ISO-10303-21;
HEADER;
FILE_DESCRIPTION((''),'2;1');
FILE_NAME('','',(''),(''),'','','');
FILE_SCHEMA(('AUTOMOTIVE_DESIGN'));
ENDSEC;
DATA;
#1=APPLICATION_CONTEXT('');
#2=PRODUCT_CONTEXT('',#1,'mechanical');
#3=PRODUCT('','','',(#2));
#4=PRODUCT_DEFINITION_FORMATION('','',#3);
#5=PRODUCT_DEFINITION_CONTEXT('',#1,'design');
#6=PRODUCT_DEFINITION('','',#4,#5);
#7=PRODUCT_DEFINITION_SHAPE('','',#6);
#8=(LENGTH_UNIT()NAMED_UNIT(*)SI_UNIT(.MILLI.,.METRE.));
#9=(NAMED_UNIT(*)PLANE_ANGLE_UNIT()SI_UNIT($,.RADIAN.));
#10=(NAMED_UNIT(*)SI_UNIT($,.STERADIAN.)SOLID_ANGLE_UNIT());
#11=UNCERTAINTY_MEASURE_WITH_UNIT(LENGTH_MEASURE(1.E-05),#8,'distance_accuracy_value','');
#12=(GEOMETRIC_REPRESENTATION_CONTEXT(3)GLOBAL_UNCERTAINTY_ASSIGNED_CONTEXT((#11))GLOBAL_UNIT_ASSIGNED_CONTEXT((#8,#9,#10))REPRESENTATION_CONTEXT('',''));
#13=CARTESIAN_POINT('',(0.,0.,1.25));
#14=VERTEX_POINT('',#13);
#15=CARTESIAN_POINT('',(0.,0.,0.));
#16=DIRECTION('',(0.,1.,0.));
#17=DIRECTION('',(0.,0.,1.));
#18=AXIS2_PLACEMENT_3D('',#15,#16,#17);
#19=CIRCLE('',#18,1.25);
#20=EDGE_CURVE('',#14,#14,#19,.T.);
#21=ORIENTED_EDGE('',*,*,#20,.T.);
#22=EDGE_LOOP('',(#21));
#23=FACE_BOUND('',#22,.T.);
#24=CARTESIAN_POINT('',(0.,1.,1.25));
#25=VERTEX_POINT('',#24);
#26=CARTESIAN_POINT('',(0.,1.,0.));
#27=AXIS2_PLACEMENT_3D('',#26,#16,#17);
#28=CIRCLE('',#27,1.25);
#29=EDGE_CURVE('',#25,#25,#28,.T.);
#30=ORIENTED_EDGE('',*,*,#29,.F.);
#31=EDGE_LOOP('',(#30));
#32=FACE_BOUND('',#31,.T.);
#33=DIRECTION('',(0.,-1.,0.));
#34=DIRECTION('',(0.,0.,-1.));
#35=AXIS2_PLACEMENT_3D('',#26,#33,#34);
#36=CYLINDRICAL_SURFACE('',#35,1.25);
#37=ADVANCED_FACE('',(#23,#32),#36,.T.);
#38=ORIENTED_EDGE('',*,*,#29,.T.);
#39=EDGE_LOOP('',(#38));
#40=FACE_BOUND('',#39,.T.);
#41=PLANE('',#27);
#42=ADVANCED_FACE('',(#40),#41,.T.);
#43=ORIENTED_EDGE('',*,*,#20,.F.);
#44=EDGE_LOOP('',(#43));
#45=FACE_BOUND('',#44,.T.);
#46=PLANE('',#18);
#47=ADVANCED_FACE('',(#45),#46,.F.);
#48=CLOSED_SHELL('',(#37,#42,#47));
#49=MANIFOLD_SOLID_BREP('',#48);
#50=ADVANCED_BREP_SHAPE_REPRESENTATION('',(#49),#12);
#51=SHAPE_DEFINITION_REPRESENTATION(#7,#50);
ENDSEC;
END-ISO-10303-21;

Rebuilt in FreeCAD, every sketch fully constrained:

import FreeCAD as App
import Part
import Sketcher
Q = App.Units.Quantity

doc = App.newDocument("Part")
body = doc.addObject("PartDesign::Body", "Body")

# Sketch on XZ plane
sketch1 = doc.addObject("Sketcher::SketchObject", "Sketch")
body.addObject(sketch1)
sketch1.AttachmentSupport = (doc.XZ_Plane, [""])
sketch1.MapMode = "FlatFace"
sketch1.addGeometry(Part.Circle(App.Vector(0, 0, 0), App.Vector(0, 0, 1), 1.25), False)
sketch1.addConstraint([
    Sketcher.Constraint("Coincident", 0, 3, -1, 1),
    Sketcher.Constraint("Diameter", 0, Q("2.5 mm")),
])
pad1 = doc.addObject("PartDesign::Pad", "Pad")
body.addObject(pad1)
pad1.Profile = sketch1
pad1.Length = 1
pad1.Reversed = True

doc.recompute()
